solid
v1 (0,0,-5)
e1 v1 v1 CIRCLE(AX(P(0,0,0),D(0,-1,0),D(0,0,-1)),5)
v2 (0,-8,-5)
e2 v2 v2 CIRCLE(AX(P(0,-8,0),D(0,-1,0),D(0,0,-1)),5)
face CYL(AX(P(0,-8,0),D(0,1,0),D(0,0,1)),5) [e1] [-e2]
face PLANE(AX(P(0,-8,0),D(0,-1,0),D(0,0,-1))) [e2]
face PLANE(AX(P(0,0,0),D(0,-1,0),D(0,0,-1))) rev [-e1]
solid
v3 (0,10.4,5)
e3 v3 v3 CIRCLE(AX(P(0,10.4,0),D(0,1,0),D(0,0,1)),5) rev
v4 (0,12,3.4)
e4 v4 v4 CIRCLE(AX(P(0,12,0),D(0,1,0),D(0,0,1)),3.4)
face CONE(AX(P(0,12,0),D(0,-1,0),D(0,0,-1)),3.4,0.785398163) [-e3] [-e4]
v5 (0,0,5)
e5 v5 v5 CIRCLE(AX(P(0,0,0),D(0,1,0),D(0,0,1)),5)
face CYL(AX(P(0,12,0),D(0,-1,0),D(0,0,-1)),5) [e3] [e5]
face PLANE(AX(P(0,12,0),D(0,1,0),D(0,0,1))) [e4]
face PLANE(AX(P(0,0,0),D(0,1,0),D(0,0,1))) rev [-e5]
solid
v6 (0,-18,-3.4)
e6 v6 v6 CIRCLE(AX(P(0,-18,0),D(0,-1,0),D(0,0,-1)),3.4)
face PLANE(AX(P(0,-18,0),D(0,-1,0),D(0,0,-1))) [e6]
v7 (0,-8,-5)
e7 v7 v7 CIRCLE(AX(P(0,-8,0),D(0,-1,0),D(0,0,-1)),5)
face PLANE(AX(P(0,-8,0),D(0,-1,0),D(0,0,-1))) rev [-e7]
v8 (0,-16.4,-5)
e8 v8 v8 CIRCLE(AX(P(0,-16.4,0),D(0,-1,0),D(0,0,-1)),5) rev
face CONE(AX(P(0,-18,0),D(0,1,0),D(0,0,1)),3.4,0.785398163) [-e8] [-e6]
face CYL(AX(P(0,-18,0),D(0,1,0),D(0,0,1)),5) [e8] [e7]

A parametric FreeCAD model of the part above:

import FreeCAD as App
import Part
import Sketcher

V = App.Vector


def edges_at(feature, points):
    """Names of the edges that pass closest to the given points."""
    edges = feature.Shape.Edges
    near = lambda p: min(range(len(edges)), key=lambda i: edges[i].distToShape(Part.Vertex(*p))[0])
    return sorted({f"Edge{near(p) + 1}" for p in points})

doc = App.newDocument("Part")
body = doc.addObject("PartDesign::Body", "Body")

sketch1 = body.newObject("Sketcher::SketchObject", "Sketch")
sketch1.AttachmentSupport = (doc.getObject("XZ_Plane"), [""])
sketch1.MapMode = "FlatFace"
sketch1.addGeometry(Part.Circle(V(0, 0, 0), V(0, 0, 1), 5), False)
sketch1.addConstraint(Sketcher.Constraint("Coincident", 0, 3, -1, 1))
sketch1.addConstraint(Sketcher.Constraint("Diameter", 0, 10.0))
pad1 = body.newObject("PartDesign::Pad", "Pad")
pad1.Profile = sketch1
pad1.Length = 12
pad1.Reversed = True
doc.recompute()

chamfer = body.newObject("PartDesign::Chamfer", "Chamfer")
chamfer.Base = (pad1, edges_at(pad1, [(0, 12, -5)]))
chamfer.Size = 1.6
body2 = doc.addObject("PartDesign::Body", "Body001")

sketch2 = body2.newObject("Sketcher::SketchObject", "Sketch001")
sketch2.AttachmentSupport = (doc.getObject("XZ_Plane001"), [""])
sketch2.MapMode = "FlatFace"
sketch2.addGeometry(Part.Circle(V(0, 0, 0), V(0, 0, 1), 5), False)
sketch2.addConstraint(Sketcher.Constraint("Coincident", 0, 3, -1, 1))
sketch2.addConstraint(Sketcher.Constraint("Diameter", 0, 10.0))
pad2 = body2.newObject("PartDesign::Pad", "Pad001")
pad2.Profile = sketch2
pad2.Length = 8
body3 = doc.addObject("PartDesign::Body", "Body002")

sketch3 = body3.newObject("Sketcher::SketchObject", "Sketch002")
sketch3.AttachmentSupport = (doc.getObject("XZ_Plane002"), [""])
sketch3.MapMode = "FlatFace"
sketch3.AttachmentOffset = App.Placement(V(0, 0, 18), App.Rotation())
sketch3.addGeometry(Part.Circle(V(0, 0, 0), V(0, 0, 1), 5), False)
sketch3.addConstraint(Sketcher.Constraint("Coincident", 0, 3, -1, 1))
sketch3.addConstraint(Sketcher.Constraint("Diameter", 0, 10.0))
pad3 = body3.newObject("PartDesign::Pad", "Pad002")
pad3.Profile = sketch3
pad3.Length = 10
pad3.Reversed = True
doc.recompute()

chamfer2 = body3.newObject("PartDesign::Chamfer", "Chamfer001")
chamfer2.Base = (pad3, edges_at(pad3, [(0, -18, 5)]))
chamfer2.Size = 1.6

doc.recompute()
